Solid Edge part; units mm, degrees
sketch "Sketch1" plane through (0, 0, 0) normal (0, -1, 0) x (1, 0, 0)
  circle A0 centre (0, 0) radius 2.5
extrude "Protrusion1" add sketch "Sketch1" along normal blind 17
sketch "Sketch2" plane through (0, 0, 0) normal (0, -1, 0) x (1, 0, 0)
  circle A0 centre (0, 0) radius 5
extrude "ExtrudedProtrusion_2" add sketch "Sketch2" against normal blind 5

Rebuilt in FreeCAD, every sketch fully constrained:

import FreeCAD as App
import Part
import Sketcher
from FreeCAD import Vector

doc = App.newDocument("Part")
body = doc.addObject("PartDesign::Body", "Body")

sketch1 = doc.addObject("Sketcher::SketchObject", "Sketch")
body.addObject(sketch1)
sketch1.AttachmentSupport = (doc.XZ_Plane, [""])
sketch1.MapMode = "FlatFace"
sketch1.addGeometry(Part.Circle(Vector(0, 0, 0), Vector(0, 0, 1), 2.5), False)
sketch1.addConstraint([
    Sketcher.Constraint("Coincident", 0, 3, -1, 1),
    Sketcher.Constraint("Diameter", 0, 5.0),
])
pad1 = doc.addObject("PartDesign::Pad", "Pad")
body.addObject(pad1)
pad1.Profile = sketch1
pad1.Length = 17

sketch2 = doc.addObject("Sketcher::SketchObject", "Sketch001")
body.addObject(sketch2)
sketch2.AttachmentSupport = (doc.XZ_Plane, [""])
sketch2.MapMode = "FlatFace"
sketch2.addGeometry(Part.Circle(Vector(0, 0, 0), Vector(0, 0, 1), 5), False)
sketch2.addConstraint([
    Sketcher.Constraint("Coincident", 0, 3, -1, 1),
    Sketcher.Constraint("Diameter", 0, 10.0),
])
pad2 = doc.addObject("PartDesign::Pad", "Pad001")
body.addObject(pad2)
pad2.Profile = sketch2
pad2.Length = 5
pad2.Reversed = True

doc.recompute()
